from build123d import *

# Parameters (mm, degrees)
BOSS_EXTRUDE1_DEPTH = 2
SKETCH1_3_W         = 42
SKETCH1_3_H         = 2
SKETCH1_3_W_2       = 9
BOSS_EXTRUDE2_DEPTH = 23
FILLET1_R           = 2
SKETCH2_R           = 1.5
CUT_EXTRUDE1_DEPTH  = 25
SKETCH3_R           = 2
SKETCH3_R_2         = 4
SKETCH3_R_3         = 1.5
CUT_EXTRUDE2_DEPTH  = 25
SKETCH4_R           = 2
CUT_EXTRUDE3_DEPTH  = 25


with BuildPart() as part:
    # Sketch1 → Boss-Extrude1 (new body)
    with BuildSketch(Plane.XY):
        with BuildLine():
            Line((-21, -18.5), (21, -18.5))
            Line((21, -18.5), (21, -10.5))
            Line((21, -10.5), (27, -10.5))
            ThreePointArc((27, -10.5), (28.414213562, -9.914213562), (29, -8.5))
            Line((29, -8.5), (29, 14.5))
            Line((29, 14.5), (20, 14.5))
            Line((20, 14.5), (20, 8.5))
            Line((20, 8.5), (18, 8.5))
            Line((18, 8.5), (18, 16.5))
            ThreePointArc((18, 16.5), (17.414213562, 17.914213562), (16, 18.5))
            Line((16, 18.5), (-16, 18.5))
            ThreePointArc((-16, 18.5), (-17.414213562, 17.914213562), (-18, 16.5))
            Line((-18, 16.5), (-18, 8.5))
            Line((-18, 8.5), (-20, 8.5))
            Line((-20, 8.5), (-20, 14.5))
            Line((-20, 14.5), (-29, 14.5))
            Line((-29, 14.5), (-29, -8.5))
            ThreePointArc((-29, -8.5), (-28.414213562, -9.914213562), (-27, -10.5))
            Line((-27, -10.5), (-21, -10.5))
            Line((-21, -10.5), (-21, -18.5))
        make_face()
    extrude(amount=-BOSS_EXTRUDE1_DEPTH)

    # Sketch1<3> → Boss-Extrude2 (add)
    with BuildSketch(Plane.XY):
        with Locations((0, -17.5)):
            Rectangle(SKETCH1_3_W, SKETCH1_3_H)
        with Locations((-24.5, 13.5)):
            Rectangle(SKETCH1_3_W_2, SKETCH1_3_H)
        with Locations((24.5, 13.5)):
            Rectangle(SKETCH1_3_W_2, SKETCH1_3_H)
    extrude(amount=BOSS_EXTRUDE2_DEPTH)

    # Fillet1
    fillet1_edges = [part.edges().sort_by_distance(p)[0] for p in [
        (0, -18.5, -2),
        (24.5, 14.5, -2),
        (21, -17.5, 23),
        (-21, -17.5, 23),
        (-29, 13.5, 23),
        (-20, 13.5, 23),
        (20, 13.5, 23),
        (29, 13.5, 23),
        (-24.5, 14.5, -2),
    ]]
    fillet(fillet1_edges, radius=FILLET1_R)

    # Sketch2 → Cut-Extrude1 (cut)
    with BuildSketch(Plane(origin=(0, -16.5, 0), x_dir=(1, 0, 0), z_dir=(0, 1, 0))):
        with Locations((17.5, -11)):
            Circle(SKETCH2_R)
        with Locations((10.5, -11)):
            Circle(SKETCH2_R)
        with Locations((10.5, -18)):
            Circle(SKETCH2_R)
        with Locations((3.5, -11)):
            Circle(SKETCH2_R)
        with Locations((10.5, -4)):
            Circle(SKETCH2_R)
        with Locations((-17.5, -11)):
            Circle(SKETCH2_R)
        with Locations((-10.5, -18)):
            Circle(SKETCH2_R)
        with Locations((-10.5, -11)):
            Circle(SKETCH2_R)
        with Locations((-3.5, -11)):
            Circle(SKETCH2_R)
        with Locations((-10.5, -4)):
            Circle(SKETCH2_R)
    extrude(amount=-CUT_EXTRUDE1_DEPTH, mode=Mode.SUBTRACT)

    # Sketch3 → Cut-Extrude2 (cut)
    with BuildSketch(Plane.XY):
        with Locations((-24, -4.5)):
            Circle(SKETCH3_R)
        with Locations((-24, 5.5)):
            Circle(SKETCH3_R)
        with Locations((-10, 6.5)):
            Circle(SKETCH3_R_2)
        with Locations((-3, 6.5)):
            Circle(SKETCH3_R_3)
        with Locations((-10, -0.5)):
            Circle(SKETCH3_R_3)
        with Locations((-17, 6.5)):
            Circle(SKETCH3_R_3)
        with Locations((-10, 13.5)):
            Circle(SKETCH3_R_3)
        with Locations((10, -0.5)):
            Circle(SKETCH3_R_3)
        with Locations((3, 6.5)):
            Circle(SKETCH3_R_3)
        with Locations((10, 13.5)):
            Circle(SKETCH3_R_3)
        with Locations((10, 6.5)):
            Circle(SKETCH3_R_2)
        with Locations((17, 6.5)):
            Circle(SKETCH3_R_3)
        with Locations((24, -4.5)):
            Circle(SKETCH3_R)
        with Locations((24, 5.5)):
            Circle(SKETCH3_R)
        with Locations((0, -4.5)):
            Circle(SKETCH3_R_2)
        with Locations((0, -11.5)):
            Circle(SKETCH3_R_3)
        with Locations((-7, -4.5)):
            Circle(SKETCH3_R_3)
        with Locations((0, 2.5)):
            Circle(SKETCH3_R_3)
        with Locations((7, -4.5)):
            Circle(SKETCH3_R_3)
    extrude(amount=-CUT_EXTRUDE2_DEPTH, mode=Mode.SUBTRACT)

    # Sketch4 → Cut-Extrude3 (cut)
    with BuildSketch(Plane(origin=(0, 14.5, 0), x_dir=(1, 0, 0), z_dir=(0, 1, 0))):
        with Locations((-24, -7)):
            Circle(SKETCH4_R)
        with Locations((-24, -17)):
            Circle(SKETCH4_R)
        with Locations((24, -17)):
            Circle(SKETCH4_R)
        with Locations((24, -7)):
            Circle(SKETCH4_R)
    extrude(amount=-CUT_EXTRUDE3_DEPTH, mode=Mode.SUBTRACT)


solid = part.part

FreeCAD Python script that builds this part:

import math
import FreeCAD as App
import Part
import Sketcher

V = App.Vector


def edges_at(feature, points):
    """Names of the edges that pass closest to the given points."""
    edges = feature.Shape.Edges
    near = lambda p: min(range(len(edges)), key=lambda i: edges[i].distToShape(Part.Vertex(*p))[0])
    return sorted({f"Edge{near(p) + 1}" for p in points})


def add_polygon(sketch, points):
    """Adds a closed chain of lines whose ends are joined by coincident constraints."""
    first, n = sketch.GeometryCount, len(points)
    for a, b in zip(points, points[1:] + points[:1]):
        sketch.addGeometry(Part.LineSegment(App.Vector(*a, 0), App.Vector(*b, 0)), False)
    for i in range(n):
        sketch.addConstraint(Sketcher.Constraint("Coincident", first + i, 2, first + (i + 1) % n, 1))

doc = App.newDocument("Part")
body = doc.addObject("PartDesign::Body", "Body")

# Sketch on XY plane
sketch1 = body.newObject("Sketcher::SketchObject", "Sketch")
sketch1.AttachmentSupport = (doc.getObject("XY_Plane"), [""])
sketch1.MapMode = "FlatFace"
sketch1.addGeometry([
    Part.LineSegment(V(-21, -18.5, 0), V(21, -18.5, 0)),  # 0
    Part.LineSegment(V(21, -18.5, 0), V(21, -10.5, 0)),  # 1
    Part.LineSegment(V(21, -10.5, 0), V(27, -10.5, 0)),  # 2
    Part.ArcOfCircle(Part.Circle(V(27, -8.5, 0), V(0, 0, 1), 2), math.radians(-90), math.radians(0)),  # 3
    Part.LineSegment(V(29, -8.5, 0), V(29, 14.5, 0)),  # 4
    Part.LineSegment(V(29, 14.5, 0), V(20, 14.5, 0)),  # 5
    Part.LineSegment(V(20, 14.5, 0), V(20, 8.5, 0)),  # 6
    Part.LineSegment(V(20, 8.5, 0), V(18, 8.5, 0)),  # 7
    Part.LineSegment(V(18, 8.5, 0), V(18, 16.5, 0)),  # 8
    Part.ArcOfCircle(Part.Circle(V(16, 16.5, 0), V(0, 0, 1), 2), math.radians(0), math.radians(90)),  # 9
    Part.LineSegment(V(16, 18.5, 0), V(-16, 18.5, 0)),  # 10
    Part.ArcOfCircle(Part.Circle(V(-16, 16.5, 0), V(0, 0, 1), 2), math.radians(90), math.radians(180)),  # 11
    Part.LineSegment(V(-18, 16.5, 0), V(-18, 8.5, 0)),  # 12
    Part.LineSegment(V(-18, 8.5, 0), V(-20, 8.5, 0)),  # 13
    Part.LineSegment(V(-20, 8.5, 0), V(-20, 14.5, 0)),  # 14
    Part.LineSegment(V(-20, 14.5, 0), V(-29, 14.5, 0)),  # 15
    Part.LineSegment(V(-29, 14.5, 0), V(-29, -8.5, 0)),  # 16
    Part.ArcOfCircle(Part.Circle(V(-27, -8.5, 0), V(0, 0, 1), 2), math.radians(-180), math.radians(-90)),  # 17
    Part.LineSegment(V(-27, -10.5, 0), V(-21, -10.5, 0)),  # 18
    Part.LineSegment(V(-21, -10.5, 0), V(-21, -18.5, 0)),  # 19
], False)
sketch1.addConstraint([
    Sketcher.Constraint("Coincident", 0, 2, 1, 1),
    Sketcher.Constraint("Coincident", 1, 2, 2, 1),
    Sketcher.Constraint("Tangent", 2, 2, 3, 1),
    Sketcher.Constraint("Tangent", 3, 2, 4, 1),
    Sketcher.Constraint("Coincident", 4, 2, 5, 1),
    Sketcher.Constraint("Coincident", 5, 2, 6, 1),
    Sketcher.Constraint("Coincident", 6, 2, 7, 1),
    Sketcher.Constraint("Coincident", 7, 2, 8, 1),
    Sketcher.Constraint("Tangent", 8, 2, 9, 1),
    Sketcher.Constraint("Tangent", 9, 2, 10, 1),
    Sketcher.Constraint("Tangent", 10, 2, 11, 1),
    Sketcher.Constraint("Tangent", 11, 2, 12, 1),
    Sketcher.Constraint("Coincident", 12, 2, 13, 1),
    Sketcher.Constraint("Coincident", 13, 2, 14, 1),
    Sketcher.Constraint("Coincident", 14, 2, 15, 1),
    Sketcher.Constraint("Coincident", 15, 2, 16, 1),
    Sketcher.Constraint("Tangent", 16, 2, 17, 1),
    Sketcher.Constraint("Tangent", 17, 2, 18, 1),
    Sketcher.Constraint("Coincident", 18, 2, 19, 1),
    Sketcher.Constraint("Coincident", 19, 2, 0, 1),
    Sketcher.Constraint("Horizontal", 0),
    Sketcher.Constraint("Vertical", 1),
    Sketcher.Constraint("Horizontal", 2),
    Sketcher.Constraint("Vertical", 4),
    Sketcher.Constraint("Horizontal", 5),
    Sketcher.Constraint("Vertical", 6),
    Sketcher.Constraint("Horizontal", 7),
    Sketcher.Constraint("Vertical", 8),
    Sketcher.Constraint("Horizontal", 10),
    Sketcher.Constraint("Vertical", 12),
    Sketcher.Constraint("Horizontal", 13),
    Sketcher.Constraint("Vertical", 14),
    Sketcher.Constraint("Horizontal", 15),
    Sketcher.Constraint("Vertical", 16),
    Sketcher.Constraint("Horizontal", 18),
    Sketcher.Constraint("Vertical", 19),
    Sketcher.Constraint("Equal", 3, 9),
    Sketcher.Constraint("Equal", 9, 11),
    Sketcher.Constraint("Equal", 11, 17),
    Sketcher.Constraint("Symmetric", 3, 3, 17, 3, -2),
    Sketcher.Constraint("Symmetric", 7, 2, 12, 2, -2),
    Sketcher.Constraint("Symmetric", 5, 2, 14, 2, -2),
    Sketcher.Constraint("Equal", 2, 18),
    Sketcher.Constraint("Equal", 18, 6),
    Sketcher.Constraint("Equal", 1, 8),
    Sketcher.Constraint("Radius", 3, 2.0),
    Sketcher.Constraint("DistanceX", 0, 1, 0, 2, 42.0),
    Sketcher.Constraint("DistanceX", 2, 1, 2, 2, 6.0),
    Sketcher.Constraint("DistanceX", 5, 2, 5, 1, 9.0),
    Sketcher.Constraint("DistanceX", 7, 2, 7, 1, 2.0),
    Sketcher.Constraint("DistanceY", 1, 1, 1, 2, 8.0),
    Sketcher.Constraint("DistanceY", 4, 1, 4, 2, 23.0),
    Sketcher.Constraint("DistanceY", 3, 3, -1, 1, 8.5),
])
pad1 = body.newObject("PartDesign::Pad", "Pad")
pad1.Profile = sketch1
pad1.Length = 2
pad1.Reversed = True

# Sketch on XY plane
sketch2 = body.newObject("Sketcher::SketchObject", "Sketch001")
sketch2.AttachmentSupport = (doc.getObject("XY_Plane"), [""])
sketch2.MapMode = "FlatFace"
add_polygon(sketch2, [(-21, -16.5), (-21, -18.5), (21, -18.5), (21, -16.5)])  # lines 0-3
add_polygon(sketch2, [(-29, 14.5), (-29, 12.5), (-20, 12.5), (-20, 14.5)])  # lines 4-7
add_polygon(sketch2, [(20, 14.5), (20, 12.5), (29, 12.5), (29, 14.5)])  # lines 8-11
sketch2.addConstraint([
    Sketcher.Constraint("Vertical", 0),
    Sketcher.Constraint("Horizontal", 1),
    Sketcher.Constraint("Vertical", 2),
    Sketcher.Constraint("Horizontal", 3),
    Sketcher.Constraint("Vertical", 4),
    Sketcher.Constraint("Horizontal", 5),
    Sketcher.Constraint("Vertical", 6),
    Sketcher.Constraint("Horizontal", 7),
    Sketcher.Constraint("Vertical", 8),
    Sketcher.Constraint("Horizontal", 9),
    Sketcher.Constraint("Vertical", 10),
    Sketcher.Constraint("Horizontal", 11),
    Sketcher.Constraint("Symmetric", 5, 2, 8, 2, -2),
    Sketcher.Constraint("Symmetric", 7, 2, 10, 2, -2),
    Sketcher.Constraint("Equal", 2, 4),
    Sketcher.Constraint("DistanceX", 1, 1, 1, 2, 42.0),
    Sketcher.Constraint("DistanceX", 5, 1, 5, 2, 9.0),
    Sketcher.Constraint("DistanceY", 0, 2, 0, 1, 2.0),
    Sketcher.Constraint("DistanceX", 0, 2, -1, 1, 21.0),
    Sketcher.Constraint("DistanceX", 4, 2, -1, 1, 29.0),
    Sketcher.Constraint("DistanceY", 3, 2, 4, 2, 29.0),
    Sketcher.Constraint("DistanceY", 0, 2, -1, 1, 18.5),
])
pad2 = body.newObject("PartDesign::Pad", "Pad001")
pad2.Profile = sketch2
pad2.Length = 23
doc.recompute()

fillet = body.newObject("PartDesign::Fillet", "Fillet")
fillet.Base = (pad2, edges_at(pad2, [
    (0, -18.5, -2),
    (24.5, 14.5, -2),
    (21, -17.5, 23),
    (-21, -17.5, 23),
    (-29, 13.5, 23),
    (-20, 13.5, 23),
    (20, 13.5, 23),
    (29, 13.5, 23),
    (-24.5, 14.5, -2),
]))
fillet.Radius = 2

# Sketch on XZ plane
sketch3 = body.newObject("Sketcher::SketchObject", "Sketch002")
sketch3.AttachmentSupport = (doc.getObject("XZ_Plane"), [""])
sketch3.MapMode = "FlatFace"
sketch3.AttachmentOffset = App.Placement(V(0, 0, 16.5), App.Rotation())
sketch3.addGeometry([
    Part.Circle(V(17.5, 11, 0), V(0, 0, 1), 1.5),  # 0
    Part.Circle(V(10.5, 11, 0), V(0, 0, 1), 1.5),  # 1
    Part.Circle(V(10.5, 18, 0), V(0, 0, 1), 1.5),  # 2
    Part.Circle(V(3.5, 11, 0), V(0, 0, 1), 1.5),  # 3
    Part.Circle(V(10.5, 4, 0), V(0, 0, 1), 1.5),  # 4
    Part.Circle(V(-17.5, 11, 0), V(0, 0, 1), 1.5),  # 5
    Part.Circle(V(-10.5, 18, 0), V(0, 0, 1), 1.5),  # 6
    Part.Circle(V(-10.5, 11, 0), V(0, 0, 1), 1.5),  # 7
    Part.Circle(V(-3.5, 11, 0), V(0, 0, 1), 1.5),  # 8
    Part.Circle(V(-10.5, 4, 0), V(0, 0, 1), 1.5),  # 9
], False)
sketch3.addConstraint([
    Sketcher.Constraint("Equal", 0, 1),
    Sketcher.Constraint("Equal", 1, 2),
    Sketcher.Constraint("Equal", 2, 3),
    Sketcher.Constraint("Equal", 3, 4),
    Sketcher.Constraint("Equal", 4, 5),
    Sketcher.Constraint("Equal", 5, 6),
    Sketcher.Constraint("Equal", 6, 7),
    Sketcher.Constraint("Equal", 7, 8),
    Sketcher.Constraint("Equal", 8, 9),
    Sketcher.Constraint("Symmetric", 0, 3, 5, 3, -2),
    Sketcher.Constraint("Symmetric", 2, 3, 6, 3, -2),
    Sketcher.Constraint("Symmetric", 1, 3, 7, 3, -2),
    Sketcher.Constraint("Symmetric", 3, 3, 8, 3, -2),
    Sketcher.Constraint("Symmetric", 4, 3, 9, 3, -2),
    Sketcher.Constraint("Horizontal", 0, 3, 1, 3),
    Sketcher.Constraint("Horizontal", 1, 3, 3, 3),
    Sketcher.Constraint("Vertical", 1, 3, 2, 3),
    Sketcher.Constraint("Vertical", 2, 3, 4, 3),
    Sketcher.Constraint("Diameter", 0, 3.0),
    Sketcher.Constraint("DistanceY", -1, 1, 0, 3, 11.0),
    Sketcher.Constraint("DistanceY", -1, 1, 2, 3, 18.0),
    Sketcher.Constraint("DistanceY", -1, 1, 4, 3, 4.0),
    Sketcher.Constraint("DistanceX", 1, 3, 0, 3, 7.0),
    Sketcher.Constraint("DistanceX", 3, 3, 1, 3, 7.0),
    Sketcher.Constraint("DistanceX", 5, 3, 3, 3, 21.0),
])
pocket1 = body.newObject("PartDesign::Pocket", "Pocket")
pocket1.Profile = sketch3
pocket1.Length = 25
pocket1.Reversed = True

# Sketch on XY plane
sketch4 = body.newObject("Sketcher::SketchObject", "Sketch003")
sketch4.AttachmentSupport = (doc.getObject("XY_Plane"), [""])
sketch4.MapMode = "FlatFace"
sketch4.addGeometry([
    Part.Circle(V(-24, -4.5, 0), V(0, 0, 1), 2),  # 0
    Part.Circle(V(-24, 5.5, 0), V(0, 0, 1), 2),  # 1
    Part.Circle(V(-10, 6.5, 0), V(0, 0, 1), 4),  # 2
    Part.Circle(V(-3, 6.5, 0), V(0, 0, 1), 1.5),  # 3
    Part.Circle(V(-10, -0.5, 0), V(0, 0, 1), 1.5),  # 4
    Part.Circle(V(-17, 6.5, 0), V(0, 0, 1), 1.5),  # 5
    Part.Circle(V(-10, 13.5, 0), V(0, 0, 1), 1.5),  # 6
    Part.Circle(V(10, -0.5, 0), V(0, 0, 1), 1.5),  # 7
    Part.Circle(V(3, 6.5, 0), V(0, 0, 1), 1.5),  # 8
    Part.Circle(V(10, 13.5, 0), V(0, 0, 1), 1.5),  # 9
    Part.Circle(V(10, 6.5, 0), V(0, 0, 1), 4),  # 10
    Part.Circle(V(17, 6.5, 0), V(0, 0, 1), 1.5),  # 11
    Part.Circle(V(24, -4.5, 0), V(0, 0, 1), 2),  # 12
    Part.Circle(V(24, 5.5, 0), V(0, 0, 1), 2),  # 13
    Part.Circle(V(0, -4.5, 0), V(0, 0, 1), 4),  # 14
    Part.Circle(V(0, -11.5, 0), V(0, 0, 1), 1.5),  # 15
    Part.Circle(V(-7, -4.5, 0), V(0, 0, 1), 1.5),  # 16
    Part.Circle(V(0, 2.5, 0), V(0, 0, 1), 1.5),  # 17
    Part.Circle(V(7, -4.5, 0), V(0, 0, 1), 1.5),  # 18
], False)
sketch4.addConstraint([
    Sketcher.Constraint("Equal", 0, 1),
    Sketcher.Constraint("Equal", 3, 4),
    Sketcher.Constraint("Equal", 4, 5),
    Sketcher.Constraint("Equal", 5, 6),
    Sketcher.Constraint("Equal", 6, 7),
    Sketcher.Constraint("Equal", 7, 8),
    Sketcher.Constraint("Equal", 8, 9),
    Sketcher.Constraint("Equal", 2, 10),
    Sketcher.Constraint("Equal", 9, 11),
    Sketcher.Constraint("Equal", 1, 12),
    Sketcher.Constraint("Equal", 12, 13),
    Sketcher.Constraint("Equal", 10, 14),
    Sketcher.Constraint("Equal", 11, 15),
    Sketcher.Constraint("Equal", 15, 16),
    Sketcher.Constraint("Equal", 16, 17),
    Sketcher.Constraint("Equal", 17, 18),
    Sketcher.Constraint("Symmetric", 4, 3, 7, 3, -2),
    Sketcher.Constraint("Symmetric", 3, 3, 8, 3, -2),
    Sketcher.Constraint("Symmetric", 6, 3, 9, 3, -2),
    Sketcher.Constraint("Symmetric", 2, 3, 10, 3, -2),
    Sketcher.Constraint("Symmetric", 5, 3, 11, 3, -2),
    Sketcher.Constraint("Symmetric", 0, 3, 12, 3, -2),
    Sketcher.Constraint("Symmetric", 1, 3, 13, 3, -2),
    Sketcher.Constraint("Symmetric", 16, 3, 18, 3, -2),
    Sketcher.Constraint("PointOnObject", 14, 3, -2),
    Sketcher.Constraint("PointOnObject", 15, 3, -2),
    Sketcher.Constraint("PointOnObject", 17, 3, -2),
    Sketcher.Constraint("Horizontal", 2, 3, 3, 3),
    Sketcher.Constraint("Horizontal", 3, 3, 5, 3),
    Sketcher.Constraint("Horizontal", 12, 3, 14, 3),
    Sketcher.Constraint("Horizontal", 14, 3, 16, 3),
    Sketcher.Constraint("Vertical", 0, 3, 1, 3),
    Sketcher.Constraint("Vertical", 2, 3, 4, 3),
    Sketcher.Constraint("Vertical", 4, 3, 6, 3),
    Sketcher.Constraint("Diameter", 0, 4.0),
    Sketcher.Constraint("Diameter", 2, 8.0),
    Sketcher.Constraint("Diameter", 3, 3.0),
    Sketcher.Constraint("DistanceX", 0, 3, -1, 1, 24.0),
    Sketcher.Constraint("DistanceX", 2, 3, -1, 1, 10.0),
    Sketcher.Constraint("DistanceX", 3, 3, -1, 1, 3.0),
    Sketcher.Constraint("DistanceX", 5, 3, -1, 1, 17.0),
    Sketcher.Constraint("DistanceX", 16, 3, -1, 1, 7.0),
    Sketcher.Constraint("DistanceY", 0, 3, 1, 3, 10.0),
    Sketcher.Constraint("DistanceY", 1, 3, 2, 3, 1.0),
    Sketcher.Constraint("DistanceY", 4, 3, 2, 3, 7.0),
    Sketcher.Constraint("DistanceY", 2, 3, 6, 3, 7.0),
    Sketcher.Constraint("DistanceY", 15, 3, 14, 3, 7.0),
    Sketcher.Constraint("DistanceY", 17, 3, 3, 3, 4.0),
    Sketcher.Constraint("DistanceY", 0, 3, -1, 1, 4.5),
])
pocket2 = body.newObject("PartDesign::Pocket", "Pocket001")
pocket2.Profile = sketch4
pocket2.Length = 25

# Sketch on XZ plane
sketch5 = body.newObject("Sketcher::SketchObject", "Sketch004")
sketch5.AttachmentSupport = (doc.getObject("XZ_Plane"), [""])
sketch5.MapMode = "FlatFace"
sketch5.AttachmentOffset = App.Placement(V(0, 0, -14.5), App.Rotation())
sketch5.addGeometry([
    Part.Circle(V(-24, 7, 0), V(0, 0, 1), 2),
    Part.Circle(V(-24, 17, 0), V(0, 0, 1), 2),
    Part.Circle(V(24, 17, 0), V(0, 0, 1), 2),
    Part.Circle(V(24, 7, 0), V(0, 0, 1), 2),
], False)
sketch5.addConstraint([
    Sketcher.Constraint("Equal", 0, 1),
    Sketcher.Constraint("Equal", 1, 2),
    Sketcher.Constraint("Equal", 2, 3),
    Sketcher.Constraint("Symmetric", 1, 3, 2, 3, -2),
    Sketcher.Constraint("Symmetric", 0, 3, 3, 3, -2),
    Sketcher.Constraint("Vertical", 0, 3, 1, 3),
    Sketcher.Constraint("Diameter", 0, 4.0),
    Sketcher.Constraint("DistanceX", 0, 3, -1, 1, 24.0),
    Sketcher.Constraint("DistanceY", -1, 1, 0, 3, 7.0),
    Sketcher.Constraint("DistanceY", -1, 1, 1, 3, 17.0),
])
pocket3 = body.newObject("PartDesign::Pocket", "Pocket002")
pocket3.Profile = sketch5
pocket3.Length = 25
pocket3.Reversed = True

doc.recompute()
